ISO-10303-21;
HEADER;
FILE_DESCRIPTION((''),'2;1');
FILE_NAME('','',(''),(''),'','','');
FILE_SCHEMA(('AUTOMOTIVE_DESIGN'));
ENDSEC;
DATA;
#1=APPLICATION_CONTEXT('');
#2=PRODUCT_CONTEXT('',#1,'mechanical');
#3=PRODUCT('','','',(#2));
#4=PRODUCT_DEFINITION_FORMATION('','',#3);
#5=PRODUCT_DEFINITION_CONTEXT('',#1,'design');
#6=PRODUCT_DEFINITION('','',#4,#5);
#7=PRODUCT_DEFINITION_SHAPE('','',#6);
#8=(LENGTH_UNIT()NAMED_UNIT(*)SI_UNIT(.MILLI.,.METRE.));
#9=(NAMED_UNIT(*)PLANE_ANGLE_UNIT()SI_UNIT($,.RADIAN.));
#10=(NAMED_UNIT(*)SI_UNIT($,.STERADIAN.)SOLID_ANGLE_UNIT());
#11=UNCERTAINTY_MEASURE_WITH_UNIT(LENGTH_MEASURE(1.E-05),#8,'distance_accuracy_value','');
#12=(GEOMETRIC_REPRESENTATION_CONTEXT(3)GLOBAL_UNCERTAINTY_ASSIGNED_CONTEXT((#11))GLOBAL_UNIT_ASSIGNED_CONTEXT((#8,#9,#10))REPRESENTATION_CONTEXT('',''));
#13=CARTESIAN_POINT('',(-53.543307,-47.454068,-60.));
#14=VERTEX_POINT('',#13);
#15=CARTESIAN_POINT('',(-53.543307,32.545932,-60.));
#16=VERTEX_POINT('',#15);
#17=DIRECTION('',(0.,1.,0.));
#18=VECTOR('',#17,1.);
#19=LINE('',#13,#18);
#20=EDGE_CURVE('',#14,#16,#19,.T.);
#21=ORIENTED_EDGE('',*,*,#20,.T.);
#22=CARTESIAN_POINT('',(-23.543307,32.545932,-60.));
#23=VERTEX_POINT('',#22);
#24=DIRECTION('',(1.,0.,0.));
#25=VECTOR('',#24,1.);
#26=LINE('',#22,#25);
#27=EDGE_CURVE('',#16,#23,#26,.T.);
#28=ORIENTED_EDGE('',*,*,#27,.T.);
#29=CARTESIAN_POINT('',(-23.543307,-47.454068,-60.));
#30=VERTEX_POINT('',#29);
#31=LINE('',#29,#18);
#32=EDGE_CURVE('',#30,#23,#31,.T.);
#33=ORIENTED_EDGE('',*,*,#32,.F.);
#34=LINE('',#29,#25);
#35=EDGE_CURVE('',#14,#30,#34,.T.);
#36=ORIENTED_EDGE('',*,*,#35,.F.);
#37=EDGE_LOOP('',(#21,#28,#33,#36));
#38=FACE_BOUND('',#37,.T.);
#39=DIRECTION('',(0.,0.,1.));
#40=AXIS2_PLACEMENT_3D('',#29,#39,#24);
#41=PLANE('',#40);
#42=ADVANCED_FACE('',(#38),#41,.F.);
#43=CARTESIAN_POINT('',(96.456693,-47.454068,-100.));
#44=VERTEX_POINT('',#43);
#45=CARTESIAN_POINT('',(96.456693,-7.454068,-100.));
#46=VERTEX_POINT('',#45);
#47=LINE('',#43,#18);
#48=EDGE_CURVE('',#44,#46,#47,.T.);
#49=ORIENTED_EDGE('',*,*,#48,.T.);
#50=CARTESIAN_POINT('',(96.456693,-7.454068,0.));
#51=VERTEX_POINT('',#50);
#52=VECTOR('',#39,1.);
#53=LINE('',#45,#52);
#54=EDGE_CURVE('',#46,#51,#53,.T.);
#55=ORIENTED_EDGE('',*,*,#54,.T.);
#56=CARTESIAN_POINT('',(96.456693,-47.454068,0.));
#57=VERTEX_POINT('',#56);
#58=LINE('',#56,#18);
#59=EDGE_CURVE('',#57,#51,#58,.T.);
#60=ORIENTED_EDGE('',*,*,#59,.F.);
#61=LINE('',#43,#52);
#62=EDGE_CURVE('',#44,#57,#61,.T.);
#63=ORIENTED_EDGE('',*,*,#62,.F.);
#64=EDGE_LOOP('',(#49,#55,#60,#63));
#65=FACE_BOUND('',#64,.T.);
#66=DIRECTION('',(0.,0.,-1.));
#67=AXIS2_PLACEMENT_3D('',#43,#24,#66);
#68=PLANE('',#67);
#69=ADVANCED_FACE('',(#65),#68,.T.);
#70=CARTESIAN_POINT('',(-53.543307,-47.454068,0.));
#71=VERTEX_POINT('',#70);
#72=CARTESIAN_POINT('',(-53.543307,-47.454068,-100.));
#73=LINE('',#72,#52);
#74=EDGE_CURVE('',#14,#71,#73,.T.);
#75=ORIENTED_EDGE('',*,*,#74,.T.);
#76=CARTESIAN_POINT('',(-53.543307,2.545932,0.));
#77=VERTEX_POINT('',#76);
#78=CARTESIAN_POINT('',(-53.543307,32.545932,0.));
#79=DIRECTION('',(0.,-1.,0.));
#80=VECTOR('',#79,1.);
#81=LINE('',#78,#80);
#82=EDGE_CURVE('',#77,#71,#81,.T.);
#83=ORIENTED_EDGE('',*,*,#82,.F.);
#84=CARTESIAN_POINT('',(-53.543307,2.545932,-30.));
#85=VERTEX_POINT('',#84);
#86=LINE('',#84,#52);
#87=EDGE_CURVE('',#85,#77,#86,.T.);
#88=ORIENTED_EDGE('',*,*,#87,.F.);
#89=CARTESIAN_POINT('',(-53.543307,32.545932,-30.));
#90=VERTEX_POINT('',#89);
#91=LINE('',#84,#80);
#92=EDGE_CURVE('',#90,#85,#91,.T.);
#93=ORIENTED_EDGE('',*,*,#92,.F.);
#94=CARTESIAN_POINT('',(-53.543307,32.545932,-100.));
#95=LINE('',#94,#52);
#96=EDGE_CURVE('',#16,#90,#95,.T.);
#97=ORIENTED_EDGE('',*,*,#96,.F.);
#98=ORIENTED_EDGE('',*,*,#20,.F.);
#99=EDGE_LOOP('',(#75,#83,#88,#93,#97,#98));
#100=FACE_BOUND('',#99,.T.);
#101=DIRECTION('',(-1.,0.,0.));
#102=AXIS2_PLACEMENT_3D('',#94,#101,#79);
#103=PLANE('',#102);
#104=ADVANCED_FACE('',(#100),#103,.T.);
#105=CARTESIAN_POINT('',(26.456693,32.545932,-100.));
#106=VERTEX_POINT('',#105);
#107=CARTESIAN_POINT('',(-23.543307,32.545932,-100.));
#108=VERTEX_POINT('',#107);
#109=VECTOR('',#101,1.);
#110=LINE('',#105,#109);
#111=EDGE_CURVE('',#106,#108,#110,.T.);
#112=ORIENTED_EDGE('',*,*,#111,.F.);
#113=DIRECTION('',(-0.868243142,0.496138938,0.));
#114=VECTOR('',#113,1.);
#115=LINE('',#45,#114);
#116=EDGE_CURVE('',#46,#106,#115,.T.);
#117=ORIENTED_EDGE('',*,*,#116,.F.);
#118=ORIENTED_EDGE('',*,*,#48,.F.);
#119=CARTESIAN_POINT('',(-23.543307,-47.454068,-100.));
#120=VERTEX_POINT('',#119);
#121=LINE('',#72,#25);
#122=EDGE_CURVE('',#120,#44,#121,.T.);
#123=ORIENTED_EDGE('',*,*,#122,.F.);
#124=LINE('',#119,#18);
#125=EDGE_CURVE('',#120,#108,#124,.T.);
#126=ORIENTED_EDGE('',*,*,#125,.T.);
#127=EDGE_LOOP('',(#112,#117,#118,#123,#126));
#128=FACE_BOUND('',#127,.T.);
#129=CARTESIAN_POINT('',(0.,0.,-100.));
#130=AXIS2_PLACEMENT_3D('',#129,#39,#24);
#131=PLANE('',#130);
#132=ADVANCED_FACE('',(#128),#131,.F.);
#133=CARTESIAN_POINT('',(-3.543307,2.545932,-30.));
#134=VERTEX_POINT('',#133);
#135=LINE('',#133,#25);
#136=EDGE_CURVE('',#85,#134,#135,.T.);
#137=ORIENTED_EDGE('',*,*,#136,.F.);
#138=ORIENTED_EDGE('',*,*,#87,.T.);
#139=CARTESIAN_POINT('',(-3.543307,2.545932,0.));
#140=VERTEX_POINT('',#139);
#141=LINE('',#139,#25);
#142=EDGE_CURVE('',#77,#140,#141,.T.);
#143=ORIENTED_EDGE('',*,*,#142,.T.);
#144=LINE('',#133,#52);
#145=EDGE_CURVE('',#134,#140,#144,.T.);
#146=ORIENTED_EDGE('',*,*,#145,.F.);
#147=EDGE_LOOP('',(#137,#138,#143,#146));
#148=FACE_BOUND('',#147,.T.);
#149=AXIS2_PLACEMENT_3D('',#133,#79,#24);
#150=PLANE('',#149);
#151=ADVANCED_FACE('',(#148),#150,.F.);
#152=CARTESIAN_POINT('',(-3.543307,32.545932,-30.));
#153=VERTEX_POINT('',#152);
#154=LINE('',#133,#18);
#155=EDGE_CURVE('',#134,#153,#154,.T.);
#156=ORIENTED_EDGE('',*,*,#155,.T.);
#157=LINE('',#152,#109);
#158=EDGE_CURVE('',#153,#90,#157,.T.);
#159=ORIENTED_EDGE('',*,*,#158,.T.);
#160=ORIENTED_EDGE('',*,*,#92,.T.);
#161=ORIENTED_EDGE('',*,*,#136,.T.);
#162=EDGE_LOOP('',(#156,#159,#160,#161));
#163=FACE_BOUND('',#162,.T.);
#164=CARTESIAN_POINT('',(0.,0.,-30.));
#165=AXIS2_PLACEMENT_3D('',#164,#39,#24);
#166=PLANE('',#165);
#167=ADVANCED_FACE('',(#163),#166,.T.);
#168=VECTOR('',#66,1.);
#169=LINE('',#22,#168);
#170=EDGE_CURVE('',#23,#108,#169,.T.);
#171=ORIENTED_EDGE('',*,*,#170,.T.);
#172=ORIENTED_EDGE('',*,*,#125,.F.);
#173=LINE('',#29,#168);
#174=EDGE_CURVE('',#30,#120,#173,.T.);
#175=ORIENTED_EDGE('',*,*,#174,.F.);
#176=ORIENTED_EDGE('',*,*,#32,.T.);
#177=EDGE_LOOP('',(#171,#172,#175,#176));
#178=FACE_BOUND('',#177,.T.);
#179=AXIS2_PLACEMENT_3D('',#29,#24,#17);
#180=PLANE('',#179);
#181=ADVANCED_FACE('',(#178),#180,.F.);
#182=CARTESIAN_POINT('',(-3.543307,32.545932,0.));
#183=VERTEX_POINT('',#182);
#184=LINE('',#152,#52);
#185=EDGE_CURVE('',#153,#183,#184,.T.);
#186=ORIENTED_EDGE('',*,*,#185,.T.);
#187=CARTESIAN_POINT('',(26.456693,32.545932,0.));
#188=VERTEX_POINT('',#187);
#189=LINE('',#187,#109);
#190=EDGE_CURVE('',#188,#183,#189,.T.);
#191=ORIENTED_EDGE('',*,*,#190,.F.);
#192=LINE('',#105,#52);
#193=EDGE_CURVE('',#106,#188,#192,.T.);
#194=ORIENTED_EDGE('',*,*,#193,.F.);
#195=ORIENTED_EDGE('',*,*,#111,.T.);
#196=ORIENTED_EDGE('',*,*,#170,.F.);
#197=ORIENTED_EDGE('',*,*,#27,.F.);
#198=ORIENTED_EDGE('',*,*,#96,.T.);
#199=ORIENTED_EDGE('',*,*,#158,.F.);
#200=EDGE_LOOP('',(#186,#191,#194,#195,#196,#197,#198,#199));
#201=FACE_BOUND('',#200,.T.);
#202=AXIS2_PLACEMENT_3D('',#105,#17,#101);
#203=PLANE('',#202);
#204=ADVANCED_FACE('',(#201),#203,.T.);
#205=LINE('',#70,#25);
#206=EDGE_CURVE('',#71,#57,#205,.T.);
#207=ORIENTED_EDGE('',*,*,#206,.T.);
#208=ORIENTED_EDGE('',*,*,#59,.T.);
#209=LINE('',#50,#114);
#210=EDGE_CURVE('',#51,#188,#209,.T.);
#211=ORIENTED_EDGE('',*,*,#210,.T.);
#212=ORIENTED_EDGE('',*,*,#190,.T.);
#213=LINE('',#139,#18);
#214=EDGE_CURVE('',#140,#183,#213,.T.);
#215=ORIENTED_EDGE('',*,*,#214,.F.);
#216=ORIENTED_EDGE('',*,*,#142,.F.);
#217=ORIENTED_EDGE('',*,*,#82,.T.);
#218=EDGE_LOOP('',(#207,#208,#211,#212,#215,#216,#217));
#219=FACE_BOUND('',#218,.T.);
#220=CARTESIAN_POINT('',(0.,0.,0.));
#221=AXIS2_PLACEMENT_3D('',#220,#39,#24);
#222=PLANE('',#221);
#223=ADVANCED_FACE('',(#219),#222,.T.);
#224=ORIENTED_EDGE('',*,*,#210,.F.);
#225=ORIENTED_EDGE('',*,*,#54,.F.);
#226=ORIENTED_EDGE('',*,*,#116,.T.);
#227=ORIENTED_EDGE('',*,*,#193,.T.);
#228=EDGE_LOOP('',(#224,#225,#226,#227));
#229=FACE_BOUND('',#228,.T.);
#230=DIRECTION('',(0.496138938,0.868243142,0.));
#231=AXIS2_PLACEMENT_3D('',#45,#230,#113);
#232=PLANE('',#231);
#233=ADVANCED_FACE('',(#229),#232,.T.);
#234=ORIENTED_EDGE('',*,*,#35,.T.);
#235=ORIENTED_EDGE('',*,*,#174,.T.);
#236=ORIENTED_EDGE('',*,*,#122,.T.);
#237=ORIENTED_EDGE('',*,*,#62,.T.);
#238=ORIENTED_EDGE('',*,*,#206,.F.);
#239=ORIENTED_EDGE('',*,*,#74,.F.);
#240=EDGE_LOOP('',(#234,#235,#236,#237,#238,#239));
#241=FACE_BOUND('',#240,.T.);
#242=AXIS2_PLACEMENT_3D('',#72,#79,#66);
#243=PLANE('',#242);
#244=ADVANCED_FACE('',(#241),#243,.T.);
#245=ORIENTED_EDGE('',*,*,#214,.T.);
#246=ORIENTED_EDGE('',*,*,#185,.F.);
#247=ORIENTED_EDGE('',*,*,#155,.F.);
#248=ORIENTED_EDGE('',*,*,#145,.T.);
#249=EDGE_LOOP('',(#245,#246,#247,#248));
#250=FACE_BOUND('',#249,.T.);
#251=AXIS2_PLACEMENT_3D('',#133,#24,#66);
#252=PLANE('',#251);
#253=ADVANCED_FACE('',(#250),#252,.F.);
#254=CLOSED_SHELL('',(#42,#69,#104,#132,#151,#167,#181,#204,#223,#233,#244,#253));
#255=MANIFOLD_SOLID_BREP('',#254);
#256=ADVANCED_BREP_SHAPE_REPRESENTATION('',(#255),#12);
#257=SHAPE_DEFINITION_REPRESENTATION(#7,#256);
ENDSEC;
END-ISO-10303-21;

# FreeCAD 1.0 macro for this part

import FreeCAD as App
import Part
import Sketcher

V = App.Vector
Q = App.Units.Quantity

doc = App.newDocument("Part")
body = doc.addObject("PartDesign::Body", "Body")

# Sketch on XY plane
sketch1 = body.newObject("Sketcher::SketchObject", "Sketch")
sketch1.AttachmentSupport = (doc.getObject("XY_Plane"), [""])
sketch1.MapMode = "FlatFace"
sketch1.addGeometry(Part.LineSegment(V(-54, -47, 0), V(96, -47, 0)), False)
sketch1.addGeometry(Part.LineSegment(V(96, -47, 0), V(96, -7, 0)), False)
sketch1.addGeometry(Part.LineSegment(V(96, -7, 0), V(26, 33, 0)), False)
sketch1.addGeometry(Part.LineSegment(V(26, 33, 0), V(-54, 33, 0)), False)
sketch1.addGeometry(Part.LineSegment(V(-54, 33, 0), V(-54, -47, 0)), False)
sketch1.addConstraint(Sketcher.Constraint("Coincident", 0, 2, 1, 1))
sketch1.addConstraint(Sketcher.Constraint("Coincident", 1, 2, 2, 1))
sketch1.addConstraint(Sketcher.Constraint("Coincident", 2, 2, 3, 1))
sketch1.addConstraint(Sketcher.Constraint("Coincident", 3, 2, 4, 1))
sketch1.addConstraint(Sketcher.Constraint("Coincident", 4, 2, 0, 1))
sketch1.addConstraint(Sketcher.Constraint("Horizontal", 0))
sketch1.addConstraint(Sketcher.Constraint("Vertical", 1))
sketch1.addConstraint(Sketcher.Constraint("Horizontal", 3))
sketch1.addConstraint(Sketcher.Constraint("Vertical", 4))
sketch1.addConstraint(Sketcher.Constraint("Equal", 3, 4))
sketch1.addConstraint(Sketcher.Constraint("DistanceX", 0, 1, 0, 2, Q("150 mm")))
sketch1.addConstraint(Sketcher.Constraint("DistanceX", 3, 2, 3, 1, Q("80 mm")))
sketch1.addConstraint(Sketcher.Constraint("DistanceY", 1, 1, 1, 2, Q("40 mm")))
sketch1.addConstraint(Sketcher.Constraint("DistanceY", 0, 2, -1, 1, Q("47.454068 mm")))
sketch1.addConstraint(Sketcher.Constraint("DistanceX", -1, 1, 0, 2, Q("96.456693 mm")))
pad1 = body.newObject("PartDesign::Pad", "Pad")
pad1.Profile = sketch1
pad1.Length = 100
pad1.Reversed = True

# Sketch on XY plane
sketch2 = body.newObject("Sketcher::SketchObject", "Sketch001")
sketch2.AttachmentSupport = (doc.getObject("XY_Plane"), [""])
sketch2.MapMode = "FlatFace"
sketch2.addGeometry(Part.LineSegment(V(-54, 33, 0), V(-54, 3, 0)), False)
sketch2.addGeometry(Part.LineSegment(V(-54, 3, 0), V(-4, 3, 0)), False)
sketch2.addGeometry(Part.LineSegment(V(-4, 3, 0), V(-4, 33, 0)), False)
sketch2.addGeometry(Part.LineSegment(V(-4, 33, 0), V(-54, 33, 0)), False)
sketch2.addConstraint(Sketcher.Constraint("Coincident", 0, 2, 1, 1))
sketch2.addConstraint(Sketcher.Constraint("Coincident", 1, 2, 2, 1))
sketch2.addConstraint(Sketcher.Constraint("Coincident", 2, 2, 3, 1))
sketch2.addConstraint(Sketcher.Constraint("Coincident", 3, 2, 0, 1))
sketch2.addConstraint(Sketcher.Constraint("Vertical", 0))
sketch2.addConstraint(Sketcher.Constraint("Horizontal", 1))
sketch2.addConstraint(Sketcher.Constraint("Vertical", 2))
sketch2.addConstraint(Sketcher.Constraint("Horizontal", 3))
sketch2.addConstraint(Sketcher.Constraint("DistanceX", 1, 1, 1, 2, Q("50 mm")))
sketch2.addConstraint(Sketcher.Constraint("DistanceY", 0, 2, 0, 1, Q("30 mm")))
sketch2.addConstraint(Sketcher.Constraint("DistanceY", -1, 1, 0, 2, Q("2.545932 mm")))
sketch2.addConstraint(Sketcher.Constraint("DistanceX", 0, 2, -1, 1, Q("53.543307 mm")))
pocket1 = body.newObject("PartDesign::Pocket", "Pocket")
pocket1.Profile = sketch2
pocket1.Length = 30

# Sketch on XZ plane
sketch3 = body.newObject("Sketcher::SketchObject", "Sketch002")
sketch3.AttachmentSupport = (doc.getObject("XZ_Plane"), [""])
sketch3.MapMode = "FlatFace"
sketch3.AttachmentOffset = App.Placement(V(0, 0, -32.545932), App.Rotation())
sketch3.addGeometry(Part.LineSegment(V(-54, -100, 0), V(-54, -60, 0)), False)
sketch3.addGeometry(Part.LineSegment(V(-54, -60, 0), V(-24, -60, 0)), False)
sketch3.addGeometry(Part.LineSegment(V(-24, -60, 0), V(-24, -100, 0)), False)
sketch3.addGeometry(Part.LineSegment(V(-24, -100, 0), V(-54, -100, 0)), False)
sketch3.addConstraint(Sketcher.Constraint("Coincident", 0, 2, 1, 1))
sketch3.addConstraint(Sketcher.Constraint("Coincident", 1, 2, 2, 1))
sketch3.addConstraint(Sketcher.Constraint("Coincident", 2, 2, 3, 1))
sketch3.addConstraint(Sketcher.Constraint("Coincident", 3, 2, 0, 1))
sketch3.addConstraint(Sketcher.Constraint("Vertical", 0))
sketch3.addConstraint(Sketcher.Constraint("Horizontal", 1))
sketch3.addConstraint(Sketcher.Constraint("Vertical", 2))
sketch3.addConstraint(Sketcher.Constraint("Horizontal", 3))
sketch3.addConstraint(Sketcher.Constraint("DistanceX", 1, 1, 1, 2, Q("30 mm")))
sketch3.addConstraint(Sketcher.Constraint("DistanceY", 0, 1, 0, 2, Q("40 mm")))
sketch3.addConstraint(Sketcher.Constraint("DistanceY", 0, 2, -1, 1, Q("60 mm")))
sketch3.addConstraint(Sketcher.Constraint("DistanceX", 0, 2, -1, 1, Q("53.543307 mm")))
pocket2 = body.newObject("PartDesign::Pocket", "Pocket001")
pocket2.Profile = sketch3
pocket2.Length = 80
pocket2.Reversed = True

doc.recompute()
